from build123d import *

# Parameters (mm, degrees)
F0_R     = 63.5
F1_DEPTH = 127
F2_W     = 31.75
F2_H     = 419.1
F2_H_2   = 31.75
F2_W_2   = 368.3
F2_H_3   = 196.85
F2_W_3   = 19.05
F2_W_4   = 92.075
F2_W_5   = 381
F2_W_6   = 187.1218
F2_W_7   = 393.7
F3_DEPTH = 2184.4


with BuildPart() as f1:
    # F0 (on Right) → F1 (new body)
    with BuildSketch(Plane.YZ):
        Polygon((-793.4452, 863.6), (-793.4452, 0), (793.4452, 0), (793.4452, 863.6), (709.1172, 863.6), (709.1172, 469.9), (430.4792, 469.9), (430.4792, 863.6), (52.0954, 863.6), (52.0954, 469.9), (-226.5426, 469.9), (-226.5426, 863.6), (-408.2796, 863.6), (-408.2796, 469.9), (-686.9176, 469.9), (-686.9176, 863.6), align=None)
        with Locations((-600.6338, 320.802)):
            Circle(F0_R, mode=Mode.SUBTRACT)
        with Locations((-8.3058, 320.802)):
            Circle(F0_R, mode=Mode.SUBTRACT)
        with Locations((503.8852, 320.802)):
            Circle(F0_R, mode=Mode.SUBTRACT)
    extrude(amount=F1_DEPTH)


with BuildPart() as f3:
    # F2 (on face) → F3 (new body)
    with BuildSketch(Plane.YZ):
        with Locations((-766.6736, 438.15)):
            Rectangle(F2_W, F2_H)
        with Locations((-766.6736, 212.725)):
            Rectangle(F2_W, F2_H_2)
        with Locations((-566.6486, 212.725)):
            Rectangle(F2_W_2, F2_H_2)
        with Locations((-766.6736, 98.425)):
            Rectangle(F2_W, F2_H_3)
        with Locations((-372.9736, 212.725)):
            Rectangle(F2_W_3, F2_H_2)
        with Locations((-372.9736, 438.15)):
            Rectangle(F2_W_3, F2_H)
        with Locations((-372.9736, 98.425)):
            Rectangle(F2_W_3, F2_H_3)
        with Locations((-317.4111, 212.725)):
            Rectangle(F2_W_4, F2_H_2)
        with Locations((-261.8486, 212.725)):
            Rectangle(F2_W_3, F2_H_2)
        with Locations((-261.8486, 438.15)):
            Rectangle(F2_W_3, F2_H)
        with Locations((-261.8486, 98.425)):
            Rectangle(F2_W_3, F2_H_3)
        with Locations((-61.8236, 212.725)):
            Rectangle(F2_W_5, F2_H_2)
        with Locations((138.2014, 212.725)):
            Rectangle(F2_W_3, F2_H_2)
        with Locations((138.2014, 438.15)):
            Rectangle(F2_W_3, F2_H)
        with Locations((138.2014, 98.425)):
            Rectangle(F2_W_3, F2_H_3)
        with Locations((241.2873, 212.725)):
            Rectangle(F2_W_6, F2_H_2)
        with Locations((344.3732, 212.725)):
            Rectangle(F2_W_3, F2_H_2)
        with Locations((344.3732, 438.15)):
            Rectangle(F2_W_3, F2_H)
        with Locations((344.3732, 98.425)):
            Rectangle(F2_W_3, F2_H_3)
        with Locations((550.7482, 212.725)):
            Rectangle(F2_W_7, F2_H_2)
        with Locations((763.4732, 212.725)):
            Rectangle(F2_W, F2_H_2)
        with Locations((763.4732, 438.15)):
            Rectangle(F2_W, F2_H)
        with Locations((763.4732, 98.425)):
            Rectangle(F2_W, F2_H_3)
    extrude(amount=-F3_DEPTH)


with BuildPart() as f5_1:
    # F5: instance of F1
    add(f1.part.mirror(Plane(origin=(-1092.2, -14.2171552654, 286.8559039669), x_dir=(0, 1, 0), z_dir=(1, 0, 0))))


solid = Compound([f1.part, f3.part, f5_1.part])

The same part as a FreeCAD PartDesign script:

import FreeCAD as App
import Part
import Sketcher
from FreeCAD import Vector
Q = App.Units.Quantity


def add_polygon(sketch, points):
    """Adds a closed chain of lines whose ends are joined by coincident constraints."""
    first, n = sketch.GeometryCount, len(points)
    for a, b in zip(points, points[1:] + points[:1]):
        sketch.addGeometry(Part.LineSegment(App.Vector(*a, 0), App.Vector(*b, 0)), False)
    for i in range(n):
        sketch.addConstraint(Sketcher.Constraint("Coincident", first + i, 2, first + (i + 1) % n, 1))

doc = App.newDocument("Part")
body = doc.addObject("PartDesign::Body", "Body")

# Sketch on YZ plane
sketch1 = body.newObject("Sketcher::SketchObject", "Sketch")
sketch1.AttachmentSupport = (doc.getObject("YZ_Plane"), [""])
sketch1.MapMode = "FlatFace"
add_polygon(sketch1, [(-793, 864), (-793, 0), (793, 0), (793, 864), (709, 864), (709, 470), (430, 470), (430, 864), (52, 864), (52, 470), (-227, 470), (-227, 864), (-408, 864), (-408, 470), (-687, 470), (-687, 864)])  # lines 0-15
sketch1.addGeometry(Part.Circle(Vector(-601, 321, 0), Vector(0, 0, 1), 64), False)  # 16
sketch1.addGeometry(Part.Circle(Vector(-8, 321, 0), Vector(0, 0, 1), 64), False)  # 17
sketch1.addGeometry(Part.Circle(Vector(504, 321, 0), Vector(0, 0, 1), 64), False)  # 18
sketch1.addConstraint(Sketcher.Constraint("Vertical", 0))
sketch1.addConstraint(Sketcher.Constraint("Horizontal", 1))
sketch1.addConstraint(Sketcher.Constraint("Vertical", 2))
sketch1.addConstraint(Sketcher.Constraint("Horizontal", 3))
sketch1.addConstraint(Sketcher.Constraint("Vertical", 4))
sketch1.addConstraint(Sketcher.Constraint("Horizontal", 5))
sketch1.addConstraint(Sketcher.Constraint("Vertical", 6))
sketch1.addConstraint(Sketcher.Constraint("Horizontal", 7))
sketch1.addConstraint(Sketcher.Constraint("Vertical", 8))
sketch1.addConstraint(Sketcher.Constraint("Horizontal", 9))
sketch1.addConstraint(Sketcher.Constraint("Vertical", 10))
sketch1.addConstraint(Sketcher.Constraint("Horizontal", 11))
sketch1.addConstraint(Sketcher.Constraint("Vertical", 12))
sketch1.addConstraint(Sketcher.Constraint("Horizontal", 13))
sketch1.addConstraint(Sketcher.Constraint("Vertical", 14))
sketch1.addConstraint(Sketcher.Constraint("Horizontal", 15))
sketch1.addConstraint(Sketcher.Constraint("Equal", 16, 17))
sketch1.addConstraint(Sketcher.Constraint("Equal", 17, 18))
sketch1.addConstraint(Sketcher.Constraint("Symmetric", 0, 2, 1, 2, -1, 1))
sketch1.addConstraint(Sketcher.Constraint("Horizontal", 16, 3, 17, 3))
sketch1.addConstraint(Sketcher.Constraint("Horizontal", 17, 3, 18, 3))
sketch1.addConstraint(Sketcher.Constraint("Horizontal", 3, 2, 6, 2))
sketch1.addConstraint(Sketcher.Constraint("Horizontal", 5, 2, 8, 2))
sketch1.addConstraint(Sketcher.Constraint("Horizontal", 7, 2, 10, 2))
sketch1.addConstraint(Sketcher.Constraint("Horizontal", 9, 2, 12, 2))
sketch1.addConstraint(Sketcher.Constraint("Horizontal", 11, 2, 14, 2))
sketch1.addConstraint(Sketcher.Constraint("Equal", 5, 9))
sketch1.addConstraint(Sketcher.Constraint("Equal", 9, 13))
sketch1.addConstraint(Sketcher.Constraint("Diameter", 16, Q("5 in")))
sketch1.addConstraint(Sketcher.Constraint("DistanceY", 0, 2, 0, 1, Q("34 in")))
sketch1.addConstraint(Sketcher.Constraint("DistanceY", 4, 2, 4, 1, Q("15.5 in")))
sketch1.addConstraint(Sketcher.Constraint("DistanceX", 3, 2, 3, 1, Q("3.32 in")))
sketch1.addConstraint(Sketcher.Constraint("DistanceX", 5, 2, 5, 1, Q("10.97 in")))
sketch1.addConstraint(Sketcher.Constraint("DistanceX", 18, 3, 1, 2, Q("11.4 in")))
sketch1.addConstraint(Sketcher.Constraint("DistanceX", 1, 1, 1, 2, Q("62.476 in")))
sketch1.addConstraint(Sketcher.Constraint("DistanceX", 7, 2, 7, 1, Q("14.897 in")))
sketch1.addConstraint(Sketcher.Constraint("DistanceX", 11, 2, 11, 1, Q("7.155 in")))
sketch1.addConstraint(Sketcher.Constraint("DistanceY", -1, 1, 16, 3, Q("12.63 in")))
sketch1.addConstraint(Sketcher.Constraint("DistanceX", 16, 3, 17, 3, Q("23.32 in")))
sketch1.addConstraint(Sketcher.Constraint("DistanceX", 16, 3, -1, 1, Q("23.647 in")))
pad1 = body.newObject("PartDesign::Pad", "Pad")
pad1.Profile = sketch1
pad1.Length = Q("5 in")
body2 = doc.addObject("PartDesign::Body", "Body001")

# Sketch on YZ plane
sketch2 = body2.newObject("Sketcher::SketchObject", "Sketch001")
sketch2.AttachmentSupport = (doc.getObject("YZ_Plane001"), [""])
sketch2.MapMode = "FlatFace"
add_polygon(sketch2, [(-783, 648), (-783, 0), (-751, 0), (-751, 197), (-382, 197), (-382, 0), (-363, 0), (-363, 197), (-271, 197), (-271, 0), (-252, 0), (-252, 197), (129, 197), (129, 0), (148, 0), (148, 197), (335, 197), (335, 0), (354, 0), (354, 197), (748, 197), (748, 0), (779, 0), (779, 648), (748, 648), (748, 229), (354, 229), (354, 648), (335, 648), (335, 229), (148, 229), (148, 648), (129, 648), (129, 229), (-252, 229), (-252, 648), (-271, 648), (-271, 229), (-363, 229), (-363, 648), (-382, 648), (-382, 229), (-751, 229), (-751, 648)])  # lines 0-43
sketch2.addConstraint(Sketcher.Constraint("Vertical", 0))
sketch2.addConstraint(Sketcher.Constraint("Horizontal", 1))
sketch2.addConstraint(Sketcher.Constraint("Vertical", 2))
sketch2.addConstraint(Sketcher.Constraint("Horizontal", 3))
sketch2.addConstraint(Sketcher.Constraint("Vertical", 4))
sketch2.addConstraint(Sketcher.Constraint("Horizontal", 5))
sketch2.addConstraint(Sketcher.Constraint("Vertical", 6))
sketch2.addConstraint(Sketcher.Constraint("Horizontal", 7))
sketch2.addConstraint(Sketcher.Constraint("Vertical", 8))
sketch2.addConstraint(Sketcher.Constraint("Horizontal", 9))
sketch2.addConstraint(Sketcher.Constraint("Vertical", 10))
sketch2.addConstraint(Sketcher.Constraint("Horizontal", 11))
sketch2.addConstraint(Sketcher.Constraint("Vertical", 12))
sketch2.addConstraint(Sketcher.Constraint("Horizontal", 13))
sketch2.addConstraint(Sketcher.Constraint("Vertical", 14))
sketch2.addConstraint(Sketcher.Constraint("Horizontal", 15))
sketch2.addConstraint(Sketcher.Constraint("Vertical", 16))
sketch2.addConstraint(Sketcher.Constraint("Horizontal", 17))
sketch2.addConstraint(Sketcher.Constraint("Vertical", 18))
sketch2.addConstraint(Sketcher.Constraint("Horizontal", 19))
sketch2.addConstraint(Sketcher.Constraint("Vertical", 20))
sketch2.addConstraint(Sketcher.Constraint("Horizontal", 21))
sketch2.addConstraint(Sketcher.Constraint("Vertical", 22))
sketch2.addConstraint(Sketcher.Constraint("Horizontal", 23))
sketch2.addConstraint(Sketcher.Constraint("Vertical", 24))
sketch2.addConstraint(Sketcher.Constraint("Horizontal", 25))
sketch2.addConstraint(Sketcher.Constraint("Vertical", 26))
sketch2.addConstraint(Sketcher.Constraint("Horizontal", 27))
sketch2.addConstraint(Sketcher.Constraint("Vertical", 28))
sketch2.addConstraint(Sketcher.Constraint("Horizontal", 29))
sketch2.addConstraint(Sketcher.Constraint("Vertical", 30))
sketch2.addConstraint(Sketcher.Constraint("Horizontal", 31))
sketch2.addConstraint(Sketcher.Constraint("Vertical", 32))
sketch2.addConstraint(Sketcher.Constraint("Horizontal", 33))
sketch2.addConstraint(Sketcher.Constraint("Vertical", 34))
sketch2.addConstraint(Sketcher.Constraint("Horizontal", 35))
sketch2.addConstraint(Sketcher.Constraint("Vertical", 36))
sketch2.addConstraint(Sketcher.Constraint("Horizontal", 37))
sketch2.addConstraint(Sketcher.Constraint("Vertical", 38))
sketch2.addConstraint(Sketcher.Constraint("Horizontal", 39))
sketch2.addConstraint(Sketcher.Constraint("Vertical", 40))
sketch2.addConstraint(Sketcher.Constraint("Horizontal", 41))
sketch2.addConstraint(Sketcher.Constraint("Vertical", 42))
sketch2.addConstraint(Sketcher.Constraint("Horizontal", 43))
sketch2.addConstraint(Sketcher.Constraint("PointOnObject", 0, 2, -1))
sketch2.addConstraint(Sketcher.Constraint("PointOnObject", 4, 2, -1))
sketch2.addConstraint(Sketcher.Constraint("PointOnObject", 8, 2, -1))
sketch2.addConstraint(Sketcher.Constraint("PointOnObject", 12, 2, -1))
sketch2.addConstraint(Sketcher.Constraint("PointOnObject", 16, 2, -1))
sketch2.addConstraint(Sketcher.Constraint("PointOnObject", 20, 2, -1))
sketch2.addConstraint(Sketcher.Constraint("Horizontal", 3, 2, 6, 2))
sketch2.addConstraint(Sketcher.Constraint("Horizontal", 7, 2, 10, 2))
sketch2.addConstraint(Sketcher.Constraint("Horizontal", 11, 2, 14, 2))
sketch2.addConstraint(Sketcher.Constraint("Horizontal", 15, 2, 18, 2))
sketch2.addConstraint(Sketcher.Constraint("Horizontal", 23, 2, 26, 2))
sketch2.addConstraint(Sketcher.Constraint("Horizontal", 25, 2, 28, 2))
sketch2.addConstraint(Sketcher.Constraint("Horizontal", 27, 2, 30, 2))
sketch2.addConstraint(Sketcher.Constraint("Horizontal", 29, 2, 32, 2))
sketch2.addConstraint(Sketcher.Constraint("Horizontal", 31, 2, 34, 2))
sketch2.addConstraint(Sketcher.Constraint("Horizontal", 33, 2, 36, 2))
sketch2.addConstraint(Sketcher.Constraint("Horizontal", 35, 2, 38, 2))
sketch2.addConstraint(Sketcher.Constraint("Horizontal", 37, 2, 40, 2))
sketch2.addConstraint(Sketcher.Constraint("Horizontal", 39, 2, 42, 2))
sketch2.addConstraint(Sketcher.Constraint("Vertical", 20, 2, 23, 2))
sketch2.addConstraint(Sketcher.Constraint("Vertical", 18, 2, 25, 2))
sketch2.addConstraint(Sketcher.Constraint("Vertical", 16, 2, 27, 2))
sketch2.addConstraint(Sketcher.Constraint("Vertical", 14, 2, 29, 2))
sketch2.addConstraint(Sketcher.Constraint("Vertical", 12, 2, 31, 2))
sketch2.addConstraint(Sketcher.Constraint("Vertical", 10, 2, 33, 2))
sketch2.addConstraint(Sketcher.Constraint("Vertical", 8, 2, 35, 2))
sketch2.addConstraint(Sketcher.Constraint("Vertical", 6, 2, 37, 2))
sketch2.addConstraint(Sketcher.Constraint("Vertical", 4, 2, 39, 2))
sketch2.addConstraint(Sketcher.Constraint("Vertical", 2, 2, 41, 2))
sketch2.addConstraint(Sketcher.Constraint("Equal", 5, 9))
sketch2.addConstraint(Sketcher.Constraint("Equal", 9, 13))
sketch2.addConstraint(Sketcher.Constraint("Equal", 13, 17))
sketch2.addConstraint(Sketcher.Constraint("Equal", 1, 21))
sketch2.addConstraint(Sketcher.Constraint("DistanceX", 11, 1, 11, 2, Q("15 in")))
sketch2.addConstraint(Sketcher.Constraint("DistanceX", 3, 1, 3, 2, Q("14.5 in")))
sketch2.addConstraint(Sketcher.Constraint("DistanceX", 19, 1, 19, 2, Q("15.5 in")))
sketch2.addConstraint(Sketcher.Constraint("DistanceY", 0, 2, 0, 1, Q("25.5 in")))
sketch2.addConstraint(Sketcher.Constraint("DistanceY", 24, 2, 24, 1, Q("16.5 in")))
sketch2.addConstraint(Sketcher.Constraint("DistanceX", 1, 1, 1, 2, Q("1.25 in")))
sketch2.addConstraint(Sketcher.Constraint("DistanceX", 5, 1, 5, 2, Q("0.75 in")))
sketch2.addConstraint(Sketcher.Constraint("DistanceY", 2, 1, 2, 2, Q("7.75 in")))
sketch2.addConstraint(Sketcher.Constraint("DistanceX", 7, 1, 7, 2, Q("3.625 in")))
sketch2.addConstraint(Sketcher.Constraint("DistanceX", 15, 1, 15, 2, Q("7.367 in")))
sketch2.addConstraint(Sketcher.Constraint("DistanceX", 0, 2, -1, 1, Q("30.809 in")))
pad2 = body2.newObject("PartDesign::Pad", "Pad001")
pad2.Profile = sketch2
pad2.Length = Q("86 in")
pad2.Reversed = True
body3 = doc.addObject("PartDesign::Body", "Body002")
doc.recompute()

mirroring = doc.addObject("Part::Mirroring", "Mirroring")
mirroring.Source = body
mirroring.Base = Vector(-1092.2, -14.217155, 286.855904)
mirroring.Normal = Vector(1, 0, 0)
body3.BaseFeature = mirroring
doc.recompute()
mirroring.Visibility = False

doc.recompute()
